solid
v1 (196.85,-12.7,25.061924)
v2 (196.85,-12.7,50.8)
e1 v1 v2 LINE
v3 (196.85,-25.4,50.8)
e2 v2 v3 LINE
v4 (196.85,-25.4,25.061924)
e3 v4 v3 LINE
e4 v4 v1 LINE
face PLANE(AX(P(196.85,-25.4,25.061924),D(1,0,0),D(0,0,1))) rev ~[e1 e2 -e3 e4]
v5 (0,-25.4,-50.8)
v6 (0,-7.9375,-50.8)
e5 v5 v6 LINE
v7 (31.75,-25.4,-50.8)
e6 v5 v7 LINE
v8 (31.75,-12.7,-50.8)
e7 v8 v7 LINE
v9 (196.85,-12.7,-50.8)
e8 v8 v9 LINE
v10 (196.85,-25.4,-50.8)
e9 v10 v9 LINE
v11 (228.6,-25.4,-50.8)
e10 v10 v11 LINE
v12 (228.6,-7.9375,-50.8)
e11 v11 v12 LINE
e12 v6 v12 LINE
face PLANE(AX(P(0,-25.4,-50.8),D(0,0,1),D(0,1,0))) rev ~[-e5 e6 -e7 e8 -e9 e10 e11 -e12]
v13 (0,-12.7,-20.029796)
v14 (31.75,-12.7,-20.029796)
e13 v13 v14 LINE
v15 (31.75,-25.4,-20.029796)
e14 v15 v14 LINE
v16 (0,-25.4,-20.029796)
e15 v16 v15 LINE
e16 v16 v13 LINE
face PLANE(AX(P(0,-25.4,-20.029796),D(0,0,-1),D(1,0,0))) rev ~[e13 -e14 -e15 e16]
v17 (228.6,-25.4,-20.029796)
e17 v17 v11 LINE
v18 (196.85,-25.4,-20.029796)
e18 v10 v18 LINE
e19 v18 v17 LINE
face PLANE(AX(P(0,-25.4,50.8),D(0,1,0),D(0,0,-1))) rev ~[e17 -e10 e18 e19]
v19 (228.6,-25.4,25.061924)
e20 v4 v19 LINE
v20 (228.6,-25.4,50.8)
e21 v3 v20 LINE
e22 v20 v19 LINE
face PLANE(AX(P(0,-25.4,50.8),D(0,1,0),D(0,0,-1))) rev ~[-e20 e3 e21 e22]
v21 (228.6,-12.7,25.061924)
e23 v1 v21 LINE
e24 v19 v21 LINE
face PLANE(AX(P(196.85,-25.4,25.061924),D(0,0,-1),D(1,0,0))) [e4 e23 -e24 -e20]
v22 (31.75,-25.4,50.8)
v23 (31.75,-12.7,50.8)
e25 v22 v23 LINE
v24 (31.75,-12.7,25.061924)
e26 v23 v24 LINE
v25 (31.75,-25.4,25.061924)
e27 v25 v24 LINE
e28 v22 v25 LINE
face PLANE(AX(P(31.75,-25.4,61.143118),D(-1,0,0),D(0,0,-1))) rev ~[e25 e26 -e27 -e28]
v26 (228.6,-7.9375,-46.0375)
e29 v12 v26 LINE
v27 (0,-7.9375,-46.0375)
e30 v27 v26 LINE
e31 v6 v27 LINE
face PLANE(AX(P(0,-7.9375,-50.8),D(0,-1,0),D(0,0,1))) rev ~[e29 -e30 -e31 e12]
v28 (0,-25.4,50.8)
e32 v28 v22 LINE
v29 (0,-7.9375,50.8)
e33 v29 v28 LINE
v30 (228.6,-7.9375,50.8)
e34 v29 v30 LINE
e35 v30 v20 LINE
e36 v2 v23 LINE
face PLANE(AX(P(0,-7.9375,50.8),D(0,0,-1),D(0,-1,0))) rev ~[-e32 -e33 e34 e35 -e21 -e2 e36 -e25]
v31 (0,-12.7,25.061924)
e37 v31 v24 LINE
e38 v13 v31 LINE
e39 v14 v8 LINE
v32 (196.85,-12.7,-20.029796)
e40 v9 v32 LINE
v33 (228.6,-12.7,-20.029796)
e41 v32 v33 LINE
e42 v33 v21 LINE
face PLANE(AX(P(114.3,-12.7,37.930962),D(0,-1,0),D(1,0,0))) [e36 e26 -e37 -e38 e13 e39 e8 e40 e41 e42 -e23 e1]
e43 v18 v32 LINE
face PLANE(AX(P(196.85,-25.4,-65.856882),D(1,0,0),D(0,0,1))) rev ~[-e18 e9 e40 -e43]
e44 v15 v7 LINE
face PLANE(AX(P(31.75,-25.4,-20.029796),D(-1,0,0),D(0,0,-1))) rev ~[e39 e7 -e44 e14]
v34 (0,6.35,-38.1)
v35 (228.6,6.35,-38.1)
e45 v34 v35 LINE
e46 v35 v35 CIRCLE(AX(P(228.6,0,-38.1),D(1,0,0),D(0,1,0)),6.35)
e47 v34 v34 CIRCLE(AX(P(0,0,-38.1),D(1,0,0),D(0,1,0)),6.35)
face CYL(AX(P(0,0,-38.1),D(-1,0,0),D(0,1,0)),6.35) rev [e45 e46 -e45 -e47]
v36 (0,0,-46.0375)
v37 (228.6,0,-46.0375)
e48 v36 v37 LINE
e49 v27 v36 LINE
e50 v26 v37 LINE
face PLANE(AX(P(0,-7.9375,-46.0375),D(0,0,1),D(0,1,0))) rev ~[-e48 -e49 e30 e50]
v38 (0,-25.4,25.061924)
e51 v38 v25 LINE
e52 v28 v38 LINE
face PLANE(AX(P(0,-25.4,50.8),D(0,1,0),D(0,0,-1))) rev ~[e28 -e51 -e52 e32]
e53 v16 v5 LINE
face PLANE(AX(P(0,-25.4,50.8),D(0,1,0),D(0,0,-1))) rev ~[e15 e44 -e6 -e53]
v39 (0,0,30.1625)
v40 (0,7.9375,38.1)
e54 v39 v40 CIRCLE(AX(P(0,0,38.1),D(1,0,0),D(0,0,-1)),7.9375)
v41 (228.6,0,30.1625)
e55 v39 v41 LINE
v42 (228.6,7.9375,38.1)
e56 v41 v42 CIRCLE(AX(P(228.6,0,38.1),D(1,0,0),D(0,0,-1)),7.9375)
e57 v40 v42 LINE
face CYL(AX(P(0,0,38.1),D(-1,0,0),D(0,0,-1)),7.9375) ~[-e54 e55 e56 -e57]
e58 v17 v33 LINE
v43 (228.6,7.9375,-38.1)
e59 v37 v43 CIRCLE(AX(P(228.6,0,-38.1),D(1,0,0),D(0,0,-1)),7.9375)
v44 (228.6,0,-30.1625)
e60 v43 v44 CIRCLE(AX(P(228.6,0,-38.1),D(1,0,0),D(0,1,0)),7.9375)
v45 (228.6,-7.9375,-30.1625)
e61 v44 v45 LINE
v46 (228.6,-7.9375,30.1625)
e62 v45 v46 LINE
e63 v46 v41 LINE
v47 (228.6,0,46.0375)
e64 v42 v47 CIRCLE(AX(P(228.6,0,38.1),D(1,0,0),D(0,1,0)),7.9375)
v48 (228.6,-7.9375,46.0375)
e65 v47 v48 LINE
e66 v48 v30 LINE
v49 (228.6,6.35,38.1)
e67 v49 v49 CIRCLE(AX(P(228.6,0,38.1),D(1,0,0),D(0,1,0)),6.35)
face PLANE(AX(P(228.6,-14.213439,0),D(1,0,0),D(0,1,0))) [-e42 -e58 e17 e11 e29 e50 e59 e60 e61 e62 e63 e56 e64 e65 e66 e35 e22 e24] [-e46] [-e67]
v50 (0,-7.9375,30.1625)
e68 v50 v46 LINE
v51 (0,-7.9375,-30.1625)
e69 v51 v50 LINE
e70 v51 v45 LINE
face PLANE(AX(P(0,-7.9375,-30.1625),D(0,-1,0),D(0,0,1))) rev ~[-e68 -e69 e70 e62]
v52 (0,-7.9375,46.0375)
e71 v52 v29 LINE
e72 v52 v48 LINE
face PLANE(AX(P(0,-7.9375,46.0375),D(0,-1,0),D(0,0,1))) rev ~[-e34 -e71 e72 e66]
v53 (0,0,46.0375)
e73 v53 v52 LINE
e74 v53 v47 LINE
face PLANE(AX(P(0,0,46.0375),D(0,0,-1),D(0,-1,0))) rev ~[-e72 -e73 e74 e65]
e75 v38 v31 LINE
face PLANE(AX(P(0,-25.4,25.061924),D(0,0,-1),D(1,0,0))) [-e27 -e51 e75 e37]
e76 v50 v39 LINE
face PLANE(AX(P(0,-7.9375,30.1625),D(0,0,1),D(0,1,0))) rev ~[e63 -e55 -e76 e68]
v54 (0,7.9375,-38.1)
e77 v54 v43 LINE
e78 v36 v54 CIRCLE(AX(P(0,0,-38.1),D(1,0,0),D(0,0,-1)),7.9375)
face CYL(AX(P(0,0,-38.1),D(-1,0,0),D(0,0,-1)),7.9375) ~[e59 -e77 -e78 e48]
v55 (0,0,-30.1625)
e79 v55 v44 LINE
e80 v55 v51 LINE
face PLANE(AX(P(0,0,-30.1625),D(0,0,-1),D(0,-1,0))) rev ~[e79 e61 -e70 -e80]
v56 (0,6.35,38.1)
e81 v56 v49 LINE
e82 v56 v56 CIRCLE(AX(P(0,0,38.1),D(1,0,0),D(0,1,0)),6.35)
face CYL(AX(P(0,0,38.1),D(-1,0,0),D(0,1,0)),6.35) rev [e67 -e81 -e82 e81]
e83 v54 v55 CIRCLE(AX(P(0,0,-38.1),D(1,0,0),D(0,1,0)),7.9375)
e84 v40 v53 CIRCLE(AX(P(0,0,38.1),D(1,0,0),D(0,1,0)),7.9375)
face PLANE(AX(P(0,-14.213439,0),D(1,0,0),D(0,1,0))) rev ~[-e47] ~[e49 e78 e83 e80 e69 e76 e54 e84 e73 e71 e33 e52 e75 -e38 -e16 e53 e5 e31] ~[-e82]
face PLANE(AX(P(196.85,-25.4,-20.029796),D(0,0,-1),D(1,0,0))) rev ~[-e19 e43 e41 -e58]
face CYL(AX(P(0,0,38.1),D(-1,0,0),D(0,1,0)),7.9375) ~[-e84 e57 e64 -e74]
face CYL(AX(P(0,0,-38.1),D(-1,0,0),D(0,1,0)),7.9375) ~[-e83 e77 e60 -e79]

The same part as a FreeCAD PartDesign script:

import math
import FreeCAD as App
import Part
import Sketcher

V = App.Vector
Q = App.Units.Quantity

doc = App.newDocument("Part")
body = doc.addObject("PartDesign::Body", "Body")

sketch1 = doc.addObject("Sketcher::SketchObject", "Sketch")
body.addObject(sketch1)
sketch1.AttachmentSupport = (doc.YZ_Plane, [""])
sketch1.MapMode = "FlatFace"
sketch1.addGeometry([
    Part.LineSegment(V(-7.9, 30.2, 0), V(0, 30.2, 0)),
    Part.ArcOfCircle(Part.Circle(V(0, 38.1, 0), V(0, 0, 1), 7.9), math.radians(-90), math.radians(0)),
    Part.ArcOfCircle(Part.Circle(V(0, 38.1, 0), V(0, 0, 1), 7.9), math.radians(0), math.radians(90)),
    Part.LineSegment(V(0, 46, 0), V(-7.9, 46, 0)),
    Part.LineSegment(V(-7.9, 46, 0), V(-7.9, 50.8, 0)),
    Part.LineSegment(V(-7.9, 50.8, 0), V(-25.4, 50.8, 0)),
    Part.LineSegment(V(-25.4, 50.8, 0), V(-25.4, -50.8, 0)),
    Part.LineSegment(V(-25.4, -50.8, 0), V(-7.9, -50.8, 0)),
    Part.LineSegment(V(-7.9, -50.8, 0), V(-7.9, -46, 0)),
    Part.LineSegment(V(-7.9, -46, 0), V(0, -46, 0)),
    Part.ArcOfCircle(Part.Circle(V(0, -38.1, 0), V(0, 0, 1), 7.9), math.radians(-90), math.radians(0)),
    Part.ArcOfCircle(Part.Circle(V(0, -38.1, 0), V(0, 0, 1), 7.9), math.radians(0), math.radians(90)),
    Part.LineSegment(V(0, -30.2, 0), V(-7.9, -30.2, 0)),
    Part.LineSegment(V(-7.9, -30.2, 0), V(-7.9, 30.2, 0)),
    Part.Circle(V(0, -38.1, 0), V(0, 0, 1), 6.3),
    Part.Circle(V(0, 38.1, 0), V(0, 0, 1), 6.3),
], False)
sketch1.addConstraint([
    Sketcher.Constraint("Tangent", 0, 2, 1, 1),
    Sketcher.Constraint("Tangent", 1, 2, 2, 1),
    Sketcher.Constraint("Tangent", 2, 2, 3, 1),
    Sketcher.Constraint("Coincident", 3, 2, 4, 1),
    Sketcher.Constraint("Coincident", 4, 2, 5, 1),
    Sketcher.Constraint("Coincident", 5, 2, 6, 1),
    Sketcher.Constraint("Coincident", 6, 2, 7, 1),
    Sketcher.Constraint("Coincident", 7, 2, 8, 1),
    Sketcher.Constraint("Coincident", 8, 2, 9, 1),
    Sketcher.Constraint("Tangent", 9, 2, 10, 1),
    Sketcher.Constraint("Tangent", 10, 2, 11, 1),
    Sketcher.Constraint("Tangent", 11, 2, 12, 1),
    Sketcher.Constraint("Coincident", 12, 2, 13, 1),
    Sketcher.Constraint("Coincident", 13, 2, 0, 1),
    Sketcher.Constraint("Horizontal", 0),
    Sketcher.Constraint("Horizontal", 3),
    Sketcher.Constraint("Vertical", 4),
    Sketcher.Constraint("Horizontal", 5),
    Sketcher.Constraint("Vertical", 6),
    Sketcher.Constraint("Horizontal", 7),
    Sketcher.Constraint("Vertical", 8),
    Sketcher.Constraint("Horizontal", 9),
    Sketcher.Constraint("Horizontal", 12),
    Sketcher.Constraint("Vertical", 13),
    Sketcher.Constraint("Coincident", 14, 3, 10, 3),
    Sketcher.Constraint("Coincident", 15, 3, 1, 3),
    Sketcher.Constraint("Equal", 1, 2),
    Sketcher.Constraint("Equal", 2, 10),
    Sketcher.Constraint("Equal", 10, 11),
    Sketcher.Constraint("Equal", 14, 15),
    Sketcher.Constraint("Symmetric", 1, 3, 10, 3, -1, 1),
    Sketcher.Constraint("Symmetric", 4, 2, 7, 2, -1),
    Sketcher.Constraint("Symmetric", 1, 2, 10, 2, -1),
    Sketcher.Constraint("Horizontal", 15, 3, 1, 2),
    Sketcher.Constraint("Vertical", 8, 2, 12, 2),
    Sketcher.Constraint("Diameter", 14, Q("0.5 in")),
    Sketcher.Constraint("DistanceY", 6, 2, 6, 1, Q("4 in")),
    Sketcher.Constraint("DistanceX", 5, 2, -1, 1, Q("1 in")),
    Sketcher.Constraint("Radius", 1, Q("0.3125 in")),
    Sketcher.Constraint("DistanceY", 10, 3, 1, 3, Q("3 in")),
    Sketcher.Constraint("DistanceX", 0, 1, 0, 2, Q("0.3125 in")),
])
pad1 = doc.addObject("PartDesign::Pad", "Pad")
body.addObject(pad1)
pad1.Profile = sketch1
pad1.Length = Q("9 in")

sketch2 = doc.addObject("Sketcher::SketchObject", "Sketch001")
body.addObject(sketch2)
sketch2.AttachmentSupport = (doc.XZ_Plane, [""])
sketch2.MapMode = "FlatFace"
sketch2.AttachmentOffset = App.Placement(V(0, 0, 1 * 25.4), App.Rotation())
sketch2.addGeometry([
    Part.LineSegment(V(197, 61, 0), V(32, 61, 0)),
    Part.LineSegment(V(32, 61, 0), V(32, 25, 0)),
    Part.LineSegment(V(32, 25, 0), V(0, 25, 0)),
    Part.LineSegment(V(0, 25, 0), V(0, -20, 0)),
    Part.LineSegment(V(0, -20, 0), V(32, -20, 0)),
    Part.LineSegment(V(32, -20, 0), V(32, -66, 0)),
    Part.LineSegment(V(32, -66, 0), V(197, -66, 0)),
    Part.LineSegment(V(197, -66, 0), V(197, -20, 0)),
    Part.LineSegment(V(197, -20, 0), V(229, -20, 0)),
    Part.LineSegment(V(229, -20, 0), V(229, 25, 0)),
    Part.LineSegment(V(229, 25, 0), V(197, 25, 0)),
    Part.LineSegment(V(197, 25, 0), V(197, 61, 0)),
], False)
sketch2.addConstraint([
    Sketcher.Constraint("Coincident", 0, 2, 1, 1),
    Sketcher.Constraint("Coincident", 1, 2, 2, 1),
    Sketcher.Constraint("Coincident", 2, 2, 3, 1),
    Sketcher.Constraint("Coincident", 3, 2, 4, 1),
    Sketcher.Constraint("Coincident", 4, 2, 5, 1),
    Sketcher.Constraint("Coincident", 5, 2, 6, 1),
    Sketcher.Constraint("Coincident", 6, 2, 7, 1),
    Sketcher.Constraint("Coincident", 7, 2, 8, 1),
    Sketcher.Constraint("Coincident", 8, 2, 9, 1),
    Sketcher.Constraint("Coincident", 9, 2, 10, 1),
    Sketcher.Constraint("Coincident", 10, 2, 11, 1),
    Sketcher.Constraint("Coincident", 11, 2, 0, 1),
    Sketcher.Constraint("Horizontal", 0),
    Sketcher.Constraint("Vertical", 1),
    Sketcher.Constraint("Horizontal", 2),
    Sketcher.Constraint("Vertical", 3),
    Sketcher.Constraint("Horizontal", 4),
    Sketcher.Constraint("Vertical", 5),
    Sketcher.Constraint("Horizontal", 6),
    Sketcher.Constraint("Vertical", 7),
    Sketcher.Constraint("Horizontal", 8),
    Sketcher.Constraint("Vertical", 9),
    Sketcher.Constraint("Horizontal", 10),
    Sketcher.Constraint("Vertical", 11),
    Sketcher.Constraint("PointOnObject", 2, 2, -2),
    Sketcher.Constraint("Horizontal", 4, 2, 7, 2),
    Sketcher.Constraint("Horizontal", 2, 2, 9, 2),
    Sketcher.Constraint("Vertical", 1, 2, 4, 2),
    Sketcher.Constraint("Vertical", 7, 2, 10, 2),
    Sketcher.Constraint("Equal", 4, 8),
    Sketcher.Constraint("DistanceX", 0, 2, 0, 1, Q("6.5 in")),
    Sketcher.Constraint("DistanceX", -1, 1, 8, 2, Q("9 in")),
    Sketcher.Constraint("DistanceY", 5, 2, 0, 2, Q("5 in")),
    Sketcher.Constraint("DistanceY", 3, 2, 3, 1, Q("45.09172 mm")),
    Sketcher.Constraint("DistanceY", 1, 2, 1, 1, Q("36.081194 mm")),
    Sketcher.Constraint("DistanceY", -1, 1, 0, 2, Q("61.143118 mm")),
])
pocket1 = doc.addObject("PartDesign::Pocket", "Pocket")
body.addObject(pocket1)
pocket1.Profile = sketch2
pocket1.Length = Q("0.5 in")

doc.recompute()
